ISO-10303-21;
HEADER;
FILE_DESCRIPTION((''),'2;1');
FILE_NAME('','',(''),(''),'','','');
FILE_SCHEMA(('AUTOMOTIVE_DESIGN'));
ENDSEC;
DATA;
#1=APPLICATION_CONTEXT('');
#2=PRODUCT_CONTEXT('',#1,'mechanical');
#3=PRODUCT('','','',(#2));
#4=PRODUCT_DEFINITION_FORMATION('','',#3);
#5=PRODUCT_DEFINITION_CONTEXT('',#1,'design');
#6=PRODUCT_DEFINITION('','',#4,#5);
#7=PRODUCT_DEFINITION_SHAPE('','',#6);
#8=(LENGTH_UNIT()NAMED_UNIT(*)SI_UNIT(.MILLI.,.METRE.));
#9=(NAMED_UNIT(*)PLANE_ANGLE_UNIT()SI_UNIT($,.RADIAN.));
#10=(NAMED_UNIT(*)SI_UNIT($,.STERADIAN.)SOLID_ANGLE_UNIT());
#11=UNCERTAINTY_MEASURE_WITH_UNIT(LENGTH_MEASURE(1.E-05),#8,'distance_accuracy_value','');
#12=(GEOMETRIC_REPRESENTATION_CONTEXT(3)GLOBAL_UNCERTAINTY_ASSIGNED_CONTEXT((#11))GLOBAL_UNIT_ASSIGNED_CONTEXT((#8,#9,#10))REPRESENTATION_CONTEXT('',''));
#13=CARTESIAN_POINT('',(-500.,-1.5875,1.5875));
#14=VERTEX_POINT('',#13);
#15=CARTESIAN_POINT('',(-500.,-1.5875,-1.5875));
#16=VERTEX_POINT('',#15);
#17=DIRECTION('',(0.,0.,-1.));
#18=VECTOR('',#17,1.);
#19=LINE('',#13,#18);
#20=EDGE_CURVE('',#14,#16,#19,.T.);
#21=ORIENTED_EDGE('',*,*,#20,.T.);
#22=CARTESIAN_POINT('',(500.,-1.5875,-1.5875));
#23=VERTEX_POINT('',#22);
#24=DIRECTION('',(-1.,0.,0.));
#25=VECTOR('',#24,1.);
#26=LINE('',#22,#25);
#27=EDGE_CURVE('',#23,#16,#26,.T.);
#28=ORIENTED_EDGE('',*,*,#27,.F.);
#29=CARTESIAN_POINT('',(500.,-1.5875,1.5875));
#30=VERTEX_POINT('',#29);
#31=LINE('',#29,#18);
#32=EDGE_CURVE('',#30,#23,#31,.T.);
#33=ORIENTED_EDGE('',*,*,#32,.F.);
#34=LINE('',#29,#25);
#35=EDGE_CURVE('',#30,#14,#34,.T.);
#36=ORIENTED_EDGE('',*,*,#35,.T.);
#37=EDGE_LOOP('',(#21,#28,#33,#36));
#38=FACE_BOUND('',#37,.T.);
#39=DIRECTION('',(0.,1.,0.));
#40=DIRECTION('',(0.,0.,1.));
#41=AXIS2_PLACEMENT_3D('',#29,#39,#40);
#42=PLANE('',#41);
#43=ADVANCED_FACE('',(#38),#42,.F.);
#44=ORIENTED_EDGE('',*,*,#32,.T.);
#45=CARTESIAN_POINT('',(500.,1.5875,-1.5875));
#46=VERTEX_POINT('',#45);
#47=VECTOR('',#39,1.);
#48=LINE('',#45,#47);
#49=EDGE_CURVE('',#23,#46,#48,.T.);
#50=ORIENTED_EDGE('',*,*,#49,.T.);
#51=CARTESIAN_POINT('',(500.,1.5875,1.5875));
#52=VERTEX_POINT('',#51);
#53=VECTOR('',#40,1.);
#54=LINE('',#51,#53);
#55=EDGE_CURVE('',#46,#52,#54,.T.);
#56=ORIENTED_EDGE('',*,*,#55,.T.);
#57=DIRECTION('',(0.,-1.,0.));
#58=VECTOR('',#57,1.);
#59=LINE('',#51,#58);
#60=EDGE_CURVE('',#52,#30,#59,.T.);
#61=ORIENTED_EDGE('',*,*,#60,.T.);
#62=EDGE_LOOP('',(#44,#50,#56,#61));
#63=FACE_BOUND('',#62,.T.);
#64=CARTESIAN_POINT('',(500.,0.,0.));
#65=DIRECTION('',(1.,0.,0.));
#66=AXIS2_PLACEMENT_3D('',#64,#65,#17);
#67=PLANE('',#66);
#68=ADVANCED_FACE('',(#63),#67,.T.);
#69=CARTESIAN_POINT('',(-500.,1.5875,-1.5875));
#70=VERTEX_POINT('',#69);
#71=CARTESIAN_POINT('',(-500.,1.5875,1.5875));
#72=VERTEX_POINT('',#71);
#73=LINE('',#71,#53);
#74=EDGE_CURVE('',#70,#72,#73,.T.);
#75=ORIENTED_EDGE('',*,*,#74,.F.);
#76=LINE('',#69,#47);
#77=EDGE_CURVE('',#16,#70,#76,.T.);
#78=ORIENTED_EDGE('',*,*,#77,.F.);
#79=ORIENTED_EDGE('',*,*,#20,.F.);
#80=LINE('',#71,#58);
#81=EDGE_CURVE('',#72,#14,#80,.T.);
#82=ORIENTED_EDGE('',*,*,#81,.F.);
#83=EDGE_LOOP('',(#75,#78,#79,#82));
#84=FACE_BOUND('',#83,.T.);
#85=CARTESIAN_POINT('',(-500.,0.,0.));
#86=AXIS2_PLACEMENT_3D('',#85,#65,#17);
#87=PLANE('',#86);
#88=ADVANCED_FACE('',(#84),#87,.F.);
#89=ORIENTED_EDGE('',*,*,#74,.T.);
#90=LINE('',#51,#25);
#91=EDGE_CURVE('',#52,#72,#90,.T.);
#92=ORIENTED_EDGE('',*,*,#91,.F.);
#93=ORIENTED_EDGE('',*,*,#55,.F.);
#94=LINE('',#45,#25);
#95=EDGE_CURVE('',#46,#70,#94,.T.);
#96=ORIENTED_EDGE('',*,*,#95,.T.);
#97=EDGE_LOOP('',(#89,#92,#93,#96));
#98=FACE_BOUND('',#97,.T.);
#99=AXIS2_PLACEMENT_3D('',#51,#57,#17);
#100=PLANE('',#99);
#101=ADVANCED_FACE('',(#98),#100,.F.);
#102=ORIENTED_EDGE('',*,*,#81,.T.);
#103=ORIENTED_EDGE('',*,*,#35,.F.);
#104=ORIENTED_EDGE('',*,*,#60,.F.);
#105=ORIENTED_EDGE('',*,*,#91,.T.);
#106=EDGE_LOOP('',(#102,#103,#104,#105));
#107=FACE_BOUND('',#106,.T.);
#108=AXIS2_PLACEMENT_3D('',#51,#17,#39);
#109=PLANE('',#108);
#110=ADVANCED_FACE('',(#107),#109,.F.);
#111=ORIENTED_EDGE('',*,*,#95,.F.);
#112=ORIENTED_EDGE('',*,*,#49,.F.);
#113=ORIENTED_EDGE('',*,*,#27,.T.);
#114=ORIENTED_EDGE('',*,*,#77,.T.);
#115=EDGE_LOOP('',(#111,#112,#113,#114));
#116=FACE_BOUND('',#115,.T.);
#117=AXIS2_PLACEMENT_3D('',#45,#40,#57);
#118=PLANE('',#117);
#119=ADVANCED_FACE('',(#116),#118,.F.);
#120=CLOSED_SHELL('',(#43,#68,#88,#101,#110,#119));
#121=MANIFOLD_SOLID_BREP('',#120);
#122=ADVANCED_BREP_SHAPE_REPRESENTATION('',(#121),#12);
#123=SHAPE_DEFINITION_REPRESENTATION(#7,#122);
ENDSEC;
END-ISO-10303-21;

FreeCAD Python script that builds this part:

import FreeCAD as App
import Part
import Sketcher
from FreeCAD import Vector

doc = App.newDocument("Part")
params = doc.addObject("Spreadsheet::Sheet", "Params")
for row, (alias, value) in enumerate([
    ("pad1_length", "1000 mm"),
], start=1):
    params.set(f"A{row}", alias)
    params.set(f"B{row}", "=" + value)
    params.setAlias(f"B{row}", alias)

body = doc.addObject("PartDesign::Body", "Body")

sketch1 = body.newObject("Sketcher::SketchObject", "Sketch")
sketch1.AttachmentSupport = (doc.getObject("YZ_Plane"), [""])
sketch1.MapMode = "FlatFace"
sketch1.addGeometry(Part.LineSegment(Vector(1.6, 1.6, 0), Vector(-1.6, 1.6, 0)), False)
sketch1.addGeometry(Part.LineSegment(Vector(-1.6, 1.6, 0), Vector(-1.6, -1.6, 0)), False)
sketch1.addGeometry(Part.LineSegment(Vector(-1.6, -1.6, 0), Vector(1.6, -1.6, 0)), False)
sketch1.addGeometry(Part.LineSegment(Vector(1.6, -1.6, 0), Vector(1.6, 1.6, 0)), False)
sketch1.addConstraint(Sketcher.Constraint("Coincident", 0, 2, 1, 1))
sketch1.addConstraint(Sketcher.Constraint("Coincident", 1, 2, 2, 1))
sketch1.addConstraint(Sketcher.Constraint("Coincident", 2, 2, 3, 1))
sketch1.addConstraint(Sketcher.Constraint("Coincident", 3, 2, 0, 1))
sketch1.addConstraint(Sketcher.Constraint("Horizontal", 0))
sketch1.addConstraint(Sketcher.Constraint("Vertical", 1))
sketch1.addConstraint(Sketcher.Constraint("Horizontal", 2))
sketch1.addConstraint(Sketcher.Constraint("Vertical", 3))
sketch1.addConstraint(Sketcher.Constraint("Symmetric", 0, 2, 2, 2, -1, 1))
sketch1.addConstraint(Sketcher.Constraint("Equal", 2, 1))
sketch1.addConstraint(Sketcher.Constraint("DistanceX", 0, 2, 0, 1, 3.175))
pad1 = body.newObject("PartDesign::Pad", "Pad")
pad1.Profile = sketch1
pad1.setExpression("Length", "Params.pad1_length")
pad1.Midplane = True

doc.recompute()
